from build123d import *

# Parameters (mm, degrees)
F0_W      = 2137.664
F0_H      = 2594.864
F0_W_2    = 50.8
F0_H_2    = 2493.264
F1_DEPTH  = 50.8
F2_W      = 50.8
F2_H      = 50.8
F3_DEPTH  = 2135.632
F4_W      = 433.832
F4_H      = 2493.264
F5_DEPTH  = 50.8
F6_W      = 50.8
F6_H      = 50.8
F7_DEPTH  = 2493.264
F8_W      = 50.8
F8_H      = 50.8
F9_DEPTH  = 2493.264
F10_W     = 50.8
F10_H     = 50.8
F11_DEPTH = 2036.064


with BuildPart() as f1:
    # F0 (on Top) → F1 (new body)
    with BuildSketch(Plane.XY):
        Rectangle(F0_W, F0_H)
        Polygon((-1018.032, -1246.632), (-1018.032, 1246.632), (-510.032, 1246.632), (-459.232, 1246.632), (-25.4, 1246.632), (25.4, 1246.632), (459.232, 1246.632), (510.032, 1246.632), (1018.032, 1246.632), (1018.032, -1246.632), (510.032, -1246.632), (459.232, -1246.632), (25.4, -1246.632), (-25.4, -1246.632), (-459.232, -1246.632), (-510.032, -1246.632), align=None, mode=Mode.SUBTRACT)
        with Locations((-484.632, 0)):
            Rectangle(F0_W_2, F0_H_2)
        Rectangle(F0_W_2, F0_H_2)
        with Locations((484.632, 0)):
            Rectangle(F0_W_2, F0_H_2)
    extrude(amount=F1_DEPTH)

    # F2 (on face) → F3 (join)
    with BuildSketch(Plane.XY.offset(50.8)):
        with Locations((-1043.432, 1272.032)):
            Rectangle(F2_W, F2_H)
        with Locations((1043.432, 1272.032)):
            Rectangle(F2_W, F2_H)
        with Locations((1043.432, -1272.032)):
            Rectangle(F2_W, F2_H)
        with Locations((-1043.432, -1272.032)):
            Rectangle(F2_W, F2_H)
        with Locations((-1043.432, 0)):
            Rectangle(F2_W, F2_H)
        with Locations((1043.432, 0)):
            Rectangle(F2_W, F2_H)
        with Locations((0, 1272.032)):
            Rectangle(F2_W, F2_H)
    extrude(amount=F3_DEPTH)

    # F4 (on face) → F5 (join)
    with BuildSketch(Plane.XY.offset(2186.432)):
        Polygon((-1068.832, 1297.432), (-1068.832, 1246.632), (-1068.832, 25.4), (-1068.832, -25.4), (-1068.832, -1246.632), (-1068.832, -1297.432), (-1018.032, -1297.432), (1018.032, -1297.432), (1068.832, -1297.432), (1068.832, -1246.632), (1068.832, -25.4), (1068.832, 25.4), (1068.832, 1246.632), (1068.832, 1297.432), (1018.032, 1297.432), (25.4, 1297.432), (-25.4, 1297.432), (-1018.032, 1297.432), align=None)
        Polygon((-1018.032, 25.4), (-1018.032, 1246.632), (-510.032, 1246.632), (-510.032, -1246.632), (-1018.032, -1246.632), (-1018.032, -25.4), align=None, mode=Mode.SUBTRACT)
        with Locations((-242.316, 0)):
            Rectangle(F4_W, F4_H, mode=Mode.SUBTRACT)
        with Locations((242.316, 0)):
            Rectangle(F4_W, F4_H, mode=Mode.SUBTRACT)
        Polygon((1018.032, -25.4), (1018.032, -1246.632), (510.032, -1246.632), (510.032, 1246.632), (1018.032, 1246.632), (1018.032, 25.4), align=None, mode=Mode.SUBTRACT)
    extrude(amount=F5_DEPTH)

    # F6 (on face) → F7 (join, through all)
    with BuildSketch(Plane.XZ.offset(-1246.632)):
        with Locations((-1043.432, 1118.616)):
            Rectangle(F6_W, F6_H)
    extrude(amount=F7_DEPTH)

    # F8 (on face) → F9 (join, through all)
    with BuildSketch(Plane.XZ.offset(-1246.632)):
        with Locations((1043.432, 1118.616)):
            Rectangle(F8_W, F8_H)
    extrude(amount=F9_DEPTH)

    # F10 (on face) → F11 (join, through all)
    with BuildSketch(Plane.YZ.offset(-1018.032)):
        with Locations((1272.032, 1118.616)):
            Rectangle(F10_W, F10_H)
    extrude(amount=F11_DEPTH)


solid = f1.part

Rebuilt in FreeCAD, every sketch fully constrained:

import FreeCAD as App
import Part
import Sketcher
Q = App.Units.Quantity


def add_polygon(sketch, points):
    """Adds a closed chain of lines whose ends are joined by coincident constraints."""
    first, n = sketch.GeometryCount, len(points)
    for a, b in zip(points, points[1:] + points[:1]):
        sketch.addGeometry(Part.LineSegment(App.Vector(*a, 0), App.Vector(*b, 0)), False)
    for i in range(n):
        sketch.addConstraint(Sketcher.Constraint("Coincident", first + i, 2, first + (i + 1) % n, 1))

doc = App.newDocument("Part")
body = doc.addObject("PartDesign::Body", "Body")

# Sketch on XY plane
sketch1 = body.newObject("Sketcher::SketchObject", "Sketch")
sketch1.AttachmentSupport = (doc.getObject("XY_Plane"), [""])
sketch1.MapMode = "FlatFace"
add_polygon(sketch1, [(-1068.832, 1297.432), (-1068.832, -1297.432), (1068.832, -1297.432), (1068.832, 1297.432)])  # lines 0-3
add_polygon(sketch1, [(1018.032, -1246.632), (510.032, -1246.632), (510.032, 1246.632), (1018.032, 1246.632)])  # lines 4-7
add_polygon(sketch1, [(459.232, -1246.632), (25.4, -1246.632), (25.4, 1246.632), (459.232, 1246.632)])  # lines 8-11
add_polygon(sketch1, [(-25.4, -1246.632), (-459.232, -1246.632), (-459.232, 1246.632), (-25.4, 1246.632)])  # lines 12-15
add_polygon(sketch1, [(-510.032, -1246.632), (-1018.032, -1246.632), (-1018.032, 1246.632), (-510.032, 1246.632)])  # lines 16-19
sketch1.addConstraint([
    Sketcher.Constraint("Vertical", 0),
    Sketcher.Constraint("Horizontal", 1),
    Sketcher.Constraint("Vertical", 2),
    Sketcher.Constraint("Horizontal", 3),
    Sketcher.Constraint("Horizontal", 4),
    Sketcher.Constraint("Vertical", 5),
    Sketcher.Constraint("Horizontal", 6),
    Sketcher.Constraint("Vertical", 7),
    Sketcher.Constraint("Horizontal", 8),
    Sketcher.Constraint("Vertical", 9),
    Sketcher.Constraint("Horizontal", 10),
    Sketcher.Constraint("Vertical", 11),
    Sketcher.Constraint("Horizontal", 12),
    Sketcher.Constraint("Vertical", 13),
    Sketcher.Constraint("Horizontal", 14),
    Sketcher.Constraint("Vertical", 15),
    Sketcher.Constraint("Horizontal", 16),
    Sketcher.Constraint("Vertical", 17),
    Sketcher.Constraint("Horizontal", 18),
    Sketcher.Constraint("Vertical", 19),
    Sketcher.Constraint("Symmetric", 0, 2, 2, 2, -1, 1),
    Sketcher.Constraint("Symmetric", 10, 2, 12, 2, -1, 1),
    Sketcher.Constraint("Symmetric", 8, 2, 14, 2, -1, 1),
    Sketcher.Constraint("Symmetric", 6, 2, 16, 2, -1, 1),
    Sketcher.Constraint("Symmetric", 4, 2, 18, 2, -1, 1),
    Sketcher.Constraint("Horizontal", 7, 2, 8, 2),
    Sketcher.Constraint("Horizontal", 6, 2, 9, 2),
    Sketcher.Constraint("Horizontal", 11, 2, 12, 2),
    Sketcher.Constraint("DistanceX", 4, 2, 4, 1, Q("20 in")),
    Sketcher.Constraint("DistanceX", -1, 1, 8, 2, Q("1 in")),
    Sketcher.Constraint("DistanceX", 4, 2, 1, 2, Q("22 in")),
    Sketcher.Constraint("DistanceY", 1, 2, 4, 2, Q("2 in")),
    Sketcher.Constraint("DistanceX", 10, 2, 5, 2, Q("2 in")),
    Sketcher.Constraint("DistanceX", 1, 1, 1, 2, Q("84.16 in")),
    Sketcher.Constraint("DistanceY", 0, 2, 0, 1, Q("102.16 in")),
])
pad1 = body.newObject("PartDesign::Pad", "Pad")
pad1.Profile = sketch1
pad1.Length = Q("2 in")

# Sketch on XY plane
sketch2 = body.newObject("Sketcher::SketchObject", "Sketch001")
sketch2.AttachmentSupport = (doc.getObject("XY_Plane"), [""])
sketch2.MapMode = "FlatFace"
sketch2.AttachmentOffset = App.Placement(App.Vector(0, 0, 2 * 25.4), App.Rotation())
add_polygon(sketch2, [(-1068.832, 1297.432), (-1068.832, 1246.632), (-1018.032, 1246.632), (-1018.032, 1297.432)])  # lines 0-3
add_polygon(sketch2, [(1018.032, 1297.432), (1018.032, 1246.632), (1068.832, 1246.632), (1068.832, 1297.432)])  # lines 4-7
add_polygon(sketch2, [(1018.032, -1246.632), (1018.032, -1297.432), (1068.832, -1297.432), (1068.832, -1246.632)])  # lines 8-11
add_polygon(sketch2, [(-1068.832, -1246.632), (-1068.832, -1297.432), (-1018.032, -1297.432), (-1018.032, -1246.632)])  # lines 12-15
add_polygon(sketch2, [(-1068.832, 25.4), (-1068.832, -25.4), (-1018.032, -25.4), (-1018.032, 25.4)])  # lines 16-19
add_polygon(sketch2, [(1018.032, 25.4), (1018.032, -25.4), (1068.832, -25.4), (1068.832, 25.4)])  # lines 20-23
add_polygon(sketch2, [(-25.4, 1297.432), (-25.4, 1246.632), (25.4, 1246.632), (25.4, 1297.432)])  # lines 24-27
sketch2.addConstraint([
    Sketcher.Constraint("Vertical", 0),
    Sketcher.Constraint("Horizontal", 1),
    Sketcher.Constraint("Vertical", 2),
    Sketcher.Constraint("Horizontal", 3),
    Sketcher.Constraint("Vertical", 4),
    Sketcher.Constraint("Horizontal", 5),
    Sketcher.Constraint("Vertical", 6),
    Sketcher.Constraint("Horizontal", 7),
    Sketcher.Constraint("Vertical", 8),
    Sketcher.Constraint("Horizontal", 9),
    Sketcher.Constraint("Vertical", 10),
    Sketcher.Constraint("Horizontal", 11),
    Sketcher.Constraint("Vertical", 12),
    Sketcher.Constraint("Horizontal", 13),
    Sketcher.Constraint("Vertical", 14),
    Sketcher.Constraint("Horizontal", 15),
    Sketcher.Constraint("Vertical", 16),
    Sketcher.Constraint("Horizontal", 17),
    Sketcher.Constraint("Vertical", 18),
    Sketcher.Constraint("Horizontal", 19),
    Sketcher.Constraint("Vertical", 20),
    Sketcher.Constraint("Horizontal", 21),
    Sketcher.Constraint("Vertical", 22),
    Sketcher.Constraint("Horizontal", 23),
    Sketcher.Constraint("Vertical", 24),
    Sketcher.Constraint("Horizontal", 25),
    Sketcher.Constraint("Vertical", 26),
    Sketcher.Constraint("Horizontal", 27),
    Sketcher.Constraint("Symmetric", 2, 2, 8, 2, -1, 1),
    Sketcher.Constraint("Symmetric", 0, 2, 10, 2, -1, 1),
    Sketcher.Constraint("Symmetric", 6, 2, 12, 2, -1, 1),
    Sketcher.Constraint("Symmetric", 4, 2, 14, 2, -1, 1),
    Sketcher.Constraint("Symmetric", 18, 2, 20, 2, -1, 1),
    Sketcher.Constraint("Symmetric", 16, 2, 22, 2, -1, 1),
    Sketcher.Constraint("Symmetric", 1, 2, 4, 2, -2),
    Sketcher.Constraint("Symmetric", 3, 2, 6, 2, -2),
    Sketcher.Constraint("Horizontal", 17, 2, 20, 2),
    Sketcher.Constraint("Horizontal", 5, 2, 24, 2),
    Sketcher.Constraint("Horizontal", 7, 2, 26, 2),
    Sketcher.Constraint("Vertical", 15, 2, 16, 2),
    Sketcher.Constraint("Vertical", 14, 2, 17, 2),
    Sketcher.Constraint("Equal", 23, 25),
    Sketcher.Constraint("Equal", 27, 0),
    Sketcher.Constraint("Equal", 14, 16),
    Sketcher.Constraint("DistanceX", 1, 1, 1, 2, Q("2 in")),
    Sketcher.Constraint("DistanceX", 24, 2, -1, 1, Q("1 in")),
    Sketcher.Constraint("DistanceX", 0, 2, -1, 1, Q("42.08 in")),
    Sketcher.Constraint("DistanceY", -1, 1, 0, 2, Q("49.08 in")),
])
pad2 = body.newObject("PartDesign::Pad", "Pad001")
pad2.Profile = sketch2
pad2.Length = Q("84.08 in")

# Sketch on XY plane
sketch3 = body.newObject("Sketcher::SketchObject", "Sketch002")
sketch3.AttachmentSupport = (doc.getObject("XY_Plane"), [""])
sketch3.MapMode = "FlatFace"
sketch3.AttachmentOffset = App.Placement(App.Vector(0, 0, 86.08 * 25.4), App.Rotation())
add_polygon(sketch3, [(-1068.832, 1297.432), (-1068.832, -1297.432), (1068.832, -1297.432), (1068.832, 1297.432)])  # lines 0-3
add_polygon(sketch3, [(-1018.032, -1246.632), (-1018.032, 1246.632), (-510.032, 1246.632), (-510.032, -1246.632)])  # lines 4-7
add_polygon(sketch3, [(-25.4, -1246.632), (-459.232, -1246.632), (-459.232, 1246.632), (-25.4, 1246.632)])  # lines 8-11
add_polygon(sketch3, [(459.232, -1246.632), (25.4, -1246.632), (25.4, 1246.632), (459.232, 1246.632)])  # lines 12-15
add_polygon(sketch3, [(1018.032, 1246.632), (1018.032, -1246.632), (510.032, -1246.632), (510.032, 1246.632)])  # lines 16-19
sketch3.addConstraint([
    Sketcher.Constraint("Vertical", 0),
    Sketcher.Constraint("Horizontal", 1),
    Sketcher.Constraint("Vertical", 2),
    Sketcher.Constraint("Horizontal", 3),
    Sketcher.Constraint("Vertical", 4),
    Sketcher.Constraint("Horizontal", 5),
    Sketcher.Constraint("Vertical", 6),
    Sketcher.Constraint("Horizontal", 7),
    Sketcher.Constraint("Horizontal", 8),
    Sketcher.Constraint("Vertical", 9),
    Sketcher.Constraint("Horizontal", 10),
    Sketcher.Constraint("Vertical", 11),
    Sketcher.Constraint("Horizontal", 12),
    Sketcher.Constraint("Vertical", 13),
    Sketcher.Constraint("Horizontal", 14),
    Sketcher.Constraint("Vertical", 15),
    Sketcher.Constraint("Vertical", 16),
    Sketcher.Constraint("Horizontal", 17),
    Sketcher.Constraint("Vertical", 18),
    Sketcher.Constraint("Horizontal", 19),
    Sketcher.Constraint("Symmetric", 0, 2, 2, 2, -1, 1),
    Sketcher.Constraint("Symmetric", 10, 2, 12, 2, -1, 1),
    Sketcher.Constraint("Symmetric", 8, 2, 14, 2, -1, 1),
    Sketcher.Constraint("Symmetric", 4, 2, 16, 2, -1, 1),
    Sketcher.Constraint("Symmetric", 6, 2, 18, 2, -1, 1),
    Sketcher.Constraint("Horizontal", 7, 2, 8, 2),
    Sketcher.Constraint("Horizontal", 5, 2, 9, 2),
    Sketcher.Constraint("Horizontal", 11, 2, 12, 2),
    Sketcher.Constraint("DistanceX", 5, 1, 5, 2, Q("20 in")),
    Sketcher.Constraint("DistanceX", 10, 2, -1, 1, Q("1 in")),
    Sketcher.Constraint("DistanceX", 3, 2, 4, 2, Q("2 in")),
    Sketcher.Constraint("DistanceY", 4, 2, 3, 2, Q("2 in")),
    Sketcher.Constraint("DistanceX", 6, 2, 8, 2, Q("2 in")),
    Sketcher.Constraint("DistanceX", 1, 1, 1, 2, Q("84.16 in")),
    Sketcher.Constraint("DistanceY", 0, 2, 0, 1, Q("102.16 in")),
])
pad3 = body.newObject("PartDesign::Pad", "Pad002")
pad3.Profile = sketch3
pad3.Length = Q("2 in")

# Sketch on XZ plane
sketch4 = body.newObject("Sketcher::SketchObject", "Sketch003")
sketch4.AttachmentSupport = (doc.getObject("XZ_Plane"), [""])
sketch4.MapMode = "FlatFace"
sketch4.AttachmentOffset = App.Placement(App.Vector(0, 0, -49.08 * 25.4), App.Rotation())
add_polygon(sketch4, [(-1068.832, 1144.016), (-1068.832, 1093.216), (-1018.032, 1093.216), (-1018.032, 1144.016)])  # lines 0-3
sketch4.addConstraint([
    Sketcher.Constraint("Vertical", 0),
    Sketcher.Constraint("Horizontal", 1),
    Sketcher.Constraint("Vertical", 2),
    Sketcher.Constraint("Horizontal", 3),
    Sketcher.Constraint("Equal", 3, 0),
    Sketcher.Constraint("DistanceX", 1, 1, 1, 2, Q("2 in")),
    Sketcher.Constraint("DistanceX", 0, 2, -1, 1, Q("42.08 in")),
    Sketcher.Constraint("DistanceY", -1, 1, 0, 2, Q("43.04 in")),
])
pad4 = body.newObject("PartDesign::Pad", "Pad003")
pad4.Profile = sketch4
pad4.Type = "UpToLast"

# Sketch on XZ plane
sketch5 = body.newObject("Sketcher::SketchObject", "Sketch004")
sketch5.AttachmentSupport = (doc.getObject("XZ_Plane"), [""])
sketch5.MapMode = "FlatFace"
sketch5.AttachmentOffset = App.Placement(App.Vector(0, 0, -49.08 * 25.4), App.Rotation())
add_polygon(sketch5, [(1018.032, 1144.016), (1018.032, 1093.216), (1068.832, 1093.216), (1068.832, 1144.016)])  # lines 0-3
sketch5.addConstraint([
    Sketcher.Constraint("Vertical", 0),
    Sketcher.Constraint("Horizontal", 1),
    Sketcher.Constraint("Vertical", 2),
    Sketcher.Constraint("Horizontal", 3),
    Sketcher.Constraint("Equal", 3, 0),
    Sketcher.Constraint("DistanceX", 1, 1, 1, 2, Q("2 in")),
    Sketcher.Constraint("DistanceX", -1, 1, 0, 2, Q("40.08 in")),
    Sketcher.Constraint("DistanceY", -1, 1, 0, 2, Q("43.04 in")),
])
pad5 = body.newObject("PartDesign::Pad", "Pad004")
pad5.Profile = sketch5
pad5.Type = "UpToLast"

# Sketch on YZ plane
sketch6 = body.newObject("Sketcher::SketchObject", "Sketch005")
sketch6.AttachmentSupport = (doc.getObject("YZ_Plane"), [""])
sketch6.MapMode = "FlatFace"
sketch6.AttachmentOffset = App.Placement(App.Vector(0, 0, -40.08 * 25.4), App.Rotation())
add_polygon(sketch6, [(1246.632, 1144.016), (1246.632, 1093.216), (1297.432, 1093.216), (1297.432, 1144.016)])  # lines 0-3
sketch6.addConstraint([
    Sketcher.Constraint("Vertical", 0),
    Sketcher.Constraint("Horizontal", 1),
    Sketcher.Constraint("Vertical", 2),
    Sketcher.Constraint("Horizontal", 3),
    Sketcher.Constraint("Equal", 3, 0),
    Sketcher.Constraint("DistanceX", 1, 1, 1, 2, Q("2 in")),
    Sketcher.Constraint("DistanceX", -1, 1, 0, 2, Q("49.08 in")),
    Sketcher.Constraint("DistanceY", -1, 1, 0, 2, Q("43.04 in")),
])
pad6 = body.newObject("PartDesign::Pad", "Pad005")
pad6.Profile = sketch6
pad6.Type = "UpToLast"

doc.recompute()
